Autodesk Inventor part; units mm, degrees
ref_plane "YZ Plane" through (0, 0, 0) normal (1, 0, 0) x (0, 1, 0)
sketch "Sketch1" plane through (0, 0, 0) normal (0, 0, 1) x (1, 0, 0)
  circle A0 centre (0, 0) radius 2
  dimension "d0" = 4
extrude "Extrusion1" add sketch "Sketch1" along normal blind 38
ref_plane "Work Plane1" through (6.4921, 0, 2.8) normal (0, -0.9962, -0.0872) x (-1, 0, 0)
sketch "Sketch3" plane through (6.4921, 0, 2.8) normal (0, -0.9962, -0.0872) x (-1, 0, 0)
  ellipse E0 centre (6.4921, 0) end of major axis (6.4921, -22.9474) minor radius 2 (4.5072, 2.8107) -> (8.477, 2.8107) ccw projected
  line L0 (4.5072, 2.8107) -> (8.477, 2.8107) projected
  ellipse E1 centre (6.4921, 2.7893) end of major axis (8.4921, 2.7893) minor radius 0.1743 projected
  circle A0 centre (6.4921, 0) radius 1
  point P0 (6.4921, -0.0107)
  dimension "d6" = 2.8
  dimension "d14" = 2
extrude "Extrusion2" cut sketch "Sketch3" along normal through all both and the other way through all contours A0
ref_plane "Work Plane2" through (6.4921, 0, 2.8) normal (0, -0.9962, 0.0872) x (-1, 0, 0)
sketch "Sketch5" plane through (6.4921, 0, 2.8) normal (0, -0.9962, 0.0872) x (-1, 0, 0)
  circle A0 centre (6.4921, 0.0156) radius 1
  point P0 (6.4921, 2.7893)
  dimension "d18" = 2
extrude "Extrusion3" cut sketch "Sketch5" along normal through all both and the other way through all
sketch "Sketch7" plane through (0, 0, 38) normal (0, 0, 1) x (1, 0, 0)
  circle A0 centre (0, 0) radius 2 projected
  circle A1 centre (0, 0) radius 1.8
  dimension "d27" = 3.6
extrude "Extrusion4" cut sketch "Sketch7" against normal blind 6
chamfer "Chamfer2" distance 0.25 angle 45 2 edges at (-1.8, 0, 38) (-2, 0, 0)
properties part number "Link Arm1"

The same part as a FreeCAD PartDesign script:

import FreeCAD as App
import Part
import Sketcher
from FreeCAD import Vector
Q = App.Units.Quantity


def edges_at(feature, points):
    """Names of the edges that pass closest to the given points."""
    edges = feature.Shape.Edges
    near = lambda p: min(range(len(edges)), key=lambda i: edges[i].distToShape(Part.Vertex(*p))[0])
    return sorted({f"Edge{near(p) + 1}" for p in points})

doc = App.newDocument("Part")
params = doc.addObject("Spreadsheet::Sheet", "Params")
for row, (alias, value) in enumerate([
    ("sketch1_diameter", "4 mm"),
    ("pad1_length", "38 mm"),
    ("sketch2_diameter", "2 mm"),
    ("sketch3_diameter", "2 mm"),
    ("sketch4_diameter", "3.6 mm"),
    ("sketch4_diameter2", "4 mm"),
    ("pocket3_length", "6 mm"),
    ("chamfer_size", "0.25 mm"),
], start=1):
    params.set(f"A{row}", alias)
    params.set(f"B{row}", "=" + value)
    params.setAlias(f"B{row}", alias)

body = doc.addObject("PartDesign::Body", "Body")

# Sketch on XY plane
sketch1 = body.newObject("Sketcher::SketchObject", "Sketch")
sketch1.AttachmentSupport = (doc.getObject("XY_Plane"), [""])
sketch1.MapMode = "FlatFace"
sketch1.addGeometry(Part.Circle(Vector(0, 0, 0), Vector(0, 0, 1), 2), False)
sketch1.addConstraint([
    Sketcher.Constraint("Coincident", 0, 3, -1, 1),
    Sketcher.Constraint("Diameter", 0, Q("4 mm")),
])
sketch1.setExpression("Constraints[1]", "Params.sketch1_diameter")
pad1 = body.newObject("PartDesign::Pad", "Pad")
pad1.Profile = sketch1
pad1.setExpression("Length", "Params.pad1_length")

# Sketch on an angled plane
sketch2 = body.newObject("Sketcher::SketchObject", "Sketch001")
sketch2.Placement = App.Placement(Vector(6.4921, 0, 2.8), App.Rotation(Vector(-1, 0, 0), Vector(0, 0.087155743, -0.996194698), Vector(0, -0.996194698, -0.087155743), "ZXY"))
sketch2.addGeometry(Part.Circle(Vector(6.4921, 0, 0), Vector(0, 0, 1), 1), False)
sketch2.addConstraint([
    Sketcher.Constraint("PointOnObject", 0, 3, -1),
    Sketcher.Constraint("Diameter", 0, Q("2 mm")),
    Sketcher.Constraint("DistanceX", -1, 1, 0, 3, Q("6.492 mm")),
])
sketch2.setExpression("Constraints[1]", "Params.sketch2_diameter")
pocket1 = body.newObject("PartDesign::Pocket", "Pocket")
pocket1.Profile = sketch2
pocket1.Type = "ThroughAll"
pocket1.Midplane = True

# Sketch on an angled plane
sketch3 = body.newObject("Sketcher::SketchObject", "Sketch002")
sketch3.Placement = App.Placement(Vector(6.4921, 0, 2.8), App.Rotation(Vector(-1, 0, 0), Vector(0, -0.087155743, -0.996194698), Vector(0, -0.996194698, 0.087155743), "ZXY"))
sketch3.addGeometry(Part.Circle(Vector(6.4921, 0.0156, 0), Vector(0, 0, 1), 1), False)
sketch3.addConstraint([
    Sketcher.Constraint("Diameter", 0, Q("2 mm")),
    Sketcher.Constraint("DistanceX", -1, 1, 0, 3, Q("6.492 mm")),
    Sketcher.Constraint("DistanceY", -1, 1, 0, 3, Q("0.0156 mm")),
])
sketch3.setExpression("Constraints[0]", "Params.sketch3_diameter")
pocket2 = body.newObject("PartDesign::Pocket", "Pocket001")
pocket2.Profile = sketch3
pocket2.Type = "ThroughAll"
pocket2.Midplane = True

# Sketch on XY plane
sketch4 = body.newObject("Sketcher::SketchObject", "Sketch003")
sketch4.AttachmentSupport = (doc.getObject("XY_Plane"), [""])
sketch4.MapMode = "FlatFace"
sketch4.AttachmentOffset = App.Placement(Vector(0, 0, 38), App.Rotation())
sketch4.addGeometry([
    Part.Circle(Vector(0, 0, 0), Vector(0, 0, 1), 2),
    Part.Circle(Vector(0, 0, 0), Vector(0, 0, 1), 1.8),
], False)
sketch4.addConstraint([
    Sketcher.Constraint("Coincident", 0, 3, -1, 1),
    Sketcher.Constraint("Coincident", 1, 3, -1, 1),
    Sketcher.Constraint("Diameter", 1, Q("3.6 mm")),
    Sketcher.Constraint("Diameter", 0, Q("4 mm")),
])
sketch4.setExpression("Constraints[2]", "Params.sketch4_diameter")
sketch4.setExpression("Constraints[3]", "Params.sketch4_diameter2")
pocket3 = body.newObject("PartDesign::Pocket", "Pocket002")
pocket3.Profile = sketch4
pocket3.setExpression("Length", "Params.pocket3_length")
doc.recompute()

chamfer = body.newObject("PartDesign::Chamfer", "Chamfer")
chamfer.Base = (pocket3, edges_at(pocket3, [(-1.8, 0, 38), (-2, 0, 0)]))
chamfer.setExpression("Size", "Params.chamfer_size")

doc.recompute()
